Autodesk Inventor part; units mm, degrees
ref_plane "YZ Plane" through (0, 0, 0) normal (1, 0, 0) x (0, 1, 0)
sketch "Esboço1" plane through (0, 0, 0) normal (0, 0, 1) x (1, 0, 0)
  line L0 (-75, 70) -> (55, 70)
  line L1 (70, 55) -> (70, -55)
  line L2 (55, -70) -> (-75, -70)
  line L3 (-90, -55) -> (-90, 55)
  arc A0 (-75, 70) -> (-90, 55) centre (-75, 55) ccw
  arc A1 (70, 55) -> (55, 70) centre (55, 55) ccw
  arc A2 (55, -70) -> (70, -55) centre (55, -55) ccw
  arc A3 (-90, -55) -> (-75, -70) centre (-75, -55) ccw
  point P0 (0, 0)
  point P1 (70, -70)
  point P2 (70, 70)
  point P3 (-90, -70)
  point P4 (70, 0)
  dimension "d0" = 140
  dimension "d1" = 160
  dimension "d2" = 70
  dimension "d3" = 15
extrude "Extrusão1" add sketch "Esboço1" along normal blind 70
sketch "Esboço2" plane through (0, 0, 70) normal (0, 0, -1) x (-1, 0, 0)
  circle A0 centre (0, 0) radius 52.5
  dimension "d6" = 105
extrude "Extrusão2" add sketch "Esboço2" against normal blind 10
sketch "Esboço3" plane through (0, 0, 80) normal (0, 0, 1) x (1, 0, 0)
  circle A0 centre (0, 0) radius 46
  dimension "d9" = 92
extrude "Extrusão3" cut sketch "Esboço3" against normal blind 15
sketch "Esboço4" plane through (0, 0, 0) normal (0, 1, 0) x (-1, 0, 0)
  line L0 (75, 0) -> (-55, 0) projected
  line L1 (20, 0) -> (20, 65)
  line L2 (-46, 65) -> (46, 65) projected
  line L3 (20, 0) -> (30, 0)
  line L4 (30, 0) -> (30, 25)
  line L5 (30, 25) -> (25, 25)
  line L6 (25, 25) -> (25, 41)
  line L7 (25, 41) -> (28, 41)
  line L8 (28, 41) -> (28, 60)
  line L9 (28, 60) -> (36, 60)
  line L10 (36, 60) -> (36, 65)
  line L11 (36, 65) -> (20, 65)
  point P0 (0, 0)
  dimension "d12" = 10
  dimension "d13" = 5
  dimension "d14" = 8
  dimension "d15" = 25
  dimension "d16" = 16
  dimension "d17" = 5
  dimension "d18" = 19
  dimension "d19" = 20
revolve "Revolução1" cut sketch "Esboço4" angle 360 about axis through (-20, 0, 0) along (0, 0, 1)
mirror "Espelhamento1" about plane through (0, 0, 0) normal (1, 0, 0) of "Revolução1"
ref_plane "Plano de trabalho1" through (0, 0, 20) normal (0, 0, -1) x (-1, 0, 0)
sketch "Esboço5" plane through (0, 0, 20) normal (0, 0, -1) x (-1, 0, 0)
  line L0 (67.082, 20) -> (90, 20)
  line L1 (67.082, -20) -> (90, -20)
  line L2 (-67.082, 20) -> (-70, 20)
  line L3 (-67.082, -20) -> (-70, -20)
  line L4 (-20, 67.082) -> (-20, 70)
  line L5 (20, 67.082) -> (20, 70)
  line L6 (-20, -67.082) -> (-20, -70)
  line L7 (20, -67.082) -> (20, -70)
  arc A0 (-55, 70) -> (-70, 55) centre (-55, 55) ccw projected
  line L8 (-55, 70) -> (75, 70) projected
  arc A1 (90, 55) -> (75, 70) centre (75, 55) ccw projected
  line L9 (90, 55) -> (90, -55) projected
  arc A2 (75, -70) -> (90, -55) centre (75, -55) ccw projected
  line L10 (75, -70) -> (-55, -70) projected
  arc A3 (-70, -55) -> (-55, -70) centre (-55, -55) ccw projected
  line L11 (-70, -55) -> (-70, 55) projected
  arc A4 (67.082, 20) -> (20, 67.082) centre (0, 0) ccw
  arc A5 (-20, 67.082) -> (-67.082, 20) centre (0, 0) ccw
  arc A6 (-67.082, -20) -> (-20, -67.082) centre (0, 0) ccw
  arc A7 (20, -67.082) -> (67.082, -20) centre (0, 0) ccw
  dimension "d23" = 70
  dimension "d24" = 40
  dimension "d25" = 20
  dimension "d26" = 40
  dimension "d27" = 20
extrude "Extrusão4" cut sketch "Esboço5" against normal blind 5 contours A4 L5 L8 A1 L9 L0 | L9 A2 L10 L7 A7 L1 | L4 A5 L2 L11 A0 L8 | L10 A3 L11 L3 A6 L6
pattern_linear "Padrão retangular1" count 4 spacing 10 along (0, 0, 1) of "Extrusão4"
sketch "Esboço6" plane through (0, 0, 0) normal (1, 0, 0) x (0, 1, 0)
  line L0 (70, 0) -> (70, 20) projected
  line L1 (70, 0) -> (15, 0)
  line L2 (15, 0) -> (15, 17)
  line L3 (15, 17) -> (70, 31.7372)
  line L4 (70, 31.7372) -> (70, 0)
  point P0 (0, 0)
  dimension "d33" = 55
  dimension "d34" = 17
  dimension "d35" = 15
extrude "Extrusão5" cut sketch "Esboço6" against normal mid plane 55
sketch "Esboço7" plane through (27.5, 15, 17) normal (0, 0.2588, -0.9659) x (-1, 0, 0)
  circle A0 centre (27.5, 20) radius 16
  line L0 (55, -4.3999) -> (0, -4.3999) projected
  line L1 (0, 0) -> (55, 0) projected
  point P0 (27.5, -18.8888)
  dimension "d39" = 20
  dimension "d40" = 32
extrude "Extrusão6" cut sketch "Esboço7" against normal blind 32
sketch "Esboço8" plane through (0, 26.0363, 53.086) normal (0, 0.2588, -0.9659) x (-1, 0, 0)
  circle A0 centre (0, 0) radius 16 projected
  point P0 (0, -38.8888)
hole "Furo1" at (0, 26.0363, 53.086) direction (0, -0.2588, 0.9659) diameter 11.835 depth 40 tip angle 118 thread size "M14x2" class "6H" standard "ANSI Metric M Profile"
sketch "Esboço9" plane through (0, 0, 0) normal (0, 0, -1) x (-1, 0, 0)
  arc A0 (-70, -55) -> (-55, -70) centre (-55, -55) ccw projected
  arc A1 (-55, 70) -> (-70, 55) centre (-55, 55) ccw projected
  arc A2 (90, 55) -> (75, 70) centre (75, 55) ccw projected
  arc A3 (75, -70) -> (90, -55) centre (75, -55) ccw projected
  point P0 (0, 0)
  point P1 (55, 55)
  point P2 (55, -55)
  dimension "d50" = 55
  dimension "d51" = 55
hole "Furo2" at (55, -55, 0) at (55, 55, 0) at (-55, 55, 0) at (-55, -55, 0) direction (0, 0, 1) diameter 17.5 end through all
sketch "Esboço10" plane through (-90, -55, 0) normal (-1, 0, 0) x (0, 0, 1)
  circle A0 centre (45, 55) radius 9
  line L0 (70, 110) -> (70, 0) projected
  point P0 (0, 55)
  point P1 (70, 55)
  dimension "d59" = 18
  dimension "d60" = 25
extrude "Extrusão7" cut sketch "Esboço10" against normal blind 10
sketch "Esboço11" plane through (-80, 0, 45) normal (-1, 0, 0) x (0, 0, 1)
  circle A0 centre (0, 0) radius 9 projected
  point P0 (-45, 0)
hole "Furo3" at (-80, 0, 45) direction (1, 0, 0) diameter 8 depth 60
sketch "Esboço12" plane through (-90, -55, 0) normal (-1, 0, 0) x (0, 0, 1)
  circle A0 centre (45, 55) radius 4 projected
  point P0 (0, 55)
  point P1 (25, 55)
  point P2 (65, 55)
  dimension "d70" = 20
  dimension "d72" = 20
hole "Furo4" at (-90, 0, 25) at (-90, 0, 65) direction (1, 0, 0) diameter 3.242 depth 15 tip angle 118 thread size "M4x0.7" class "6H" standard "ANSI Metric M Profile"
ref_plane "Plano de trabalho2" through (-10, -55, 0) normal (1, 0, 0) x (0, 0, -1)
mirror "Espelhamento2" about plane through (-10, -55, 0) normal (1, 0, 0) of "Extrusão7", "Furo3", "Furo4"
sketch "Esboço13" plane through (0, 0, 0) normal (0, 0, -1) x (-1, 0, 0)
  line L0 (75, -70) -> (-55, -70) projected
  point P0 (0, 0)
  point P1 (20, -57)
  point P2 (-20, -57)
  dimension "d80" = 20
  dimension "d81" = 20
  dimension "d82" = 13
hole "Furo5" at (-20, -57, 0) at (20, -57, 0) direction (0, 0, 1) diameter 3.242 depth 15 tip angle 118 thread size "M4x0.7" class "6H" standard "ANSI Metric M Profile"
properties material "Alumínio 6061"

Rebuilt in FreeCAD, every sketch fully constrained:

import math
import FreeCAD as App
import Part
import Sketcher
from FreeCAD import Vector
Q = App.Units.Quantity


def add_polygon(sketch, points):
    """Adds a closed chain of lines whose ends are joined by coincident constraints."""
    first, n = sketch.GeometryCount, len(points)
    for a, b in zip(points, points[1:] + points[:1]):
        sketch.addGeometry(Part.LineSegment(App.Vector(*a, 0), App.Vector(*b, 0)), False)
    for i in range(n):
        sketch.addConstraint(Sketcher.Constraint("Coincident", first + i, 2, first + (i + 1) % n, 1))

doc = App.newDocument("Part")
body = doc.addObject("PartDesign::Body", "Body")

sketch1 = body.newObject("Sketcher::SketchObject", "Sketch")
sketch1.AttachmentSupport = (doc.getObject("XY_Plane"), [""])
sketch1.MapMode = "FlatFace"
sketch1.addGeometry([
    Part.LineSegment(Vector(55, 70, 0), Vector(-75, 70, 0)),
    Part.ArcOfCircle(Part.Circle(Vector(-75, 55, 0), Vector(0, 0, 1), 15), math.radians(90), math.radians(180)),
    Part.LineSegment(Vector(-90, 55, 0), Vector(-90, -55, 0)),
    Part.ArcOfCircle(Part.Circle(Vector(-75, -55, 0), Vector(0, 0, 1), 15), math.radians(180), math.radians(270)),
    Part.LineSegment(Vector(-75, -70, 0), Vector(55, -70, 0)),
    Part.ArcOfCircle(Part.Circle(Vector(55, -55, 0), Vector(0, 0, 1), 15), math.radians(-90), math.radians(0)),
    Part.LineSegment(Vector(70, -55, 0), Vector(70, 55, 0)),
    Part.ArcOfCircle(Part.Circle(Vector(55, 55, 0), Vector(0, 0, 1), 15), math.radians(0), math.radians(90)),
], False)
sketch1.addConstraint([
    Sketcher.Constraint("Tangent", 0, 2, 1, 1),
    Sketcher.Constraint("Tangent", 1, 2, 2, 1),
    Sketcher.Constraint("Tangent", 2, 2, 3, 1),
    Sketcher.Constraint("Tangent", 3, 2, 4, 1),
    Sketcher.Constraint("Tangent", 4, 2, 5, 1),
    Sketcher.Constraint("Tangent", 5, 2, 6, 1),
    Sketcher.Constraint("Tangent", 6, 2, 7, 1),
    Sketcher.Constraint("Tangent", 7, 2, 0, 1),
    Sketcher.Constraint("Horizontal", 0),
    Sketcher.Constraint("Vertical", 2),
    Sketcher.Constraint("Horizontal", 4),
    Sketcher.Constraint("Vertical", 6),
    Sketcher.Constraint("Equal", 1, 3),
    Sketcher.Constraint("Equal", 3, 5),
    Sketcher.Constraint("Equal", 5, 7),
    Sketcher.Constraint("Radius", 1, Q("15 mm")),
    Sketcher.Constraint("DistanceY", -1, 1, 0, 2, Q("70 mm")),
    Sketcher.Constraint("DistanceY", 3, 2, -1, 1, Q("70 mm")),
    Sketcher.Constraint("DistanceX", -1, 1, 5, 2, Q("70 mm")),
    Sketcher.Constraint("DistanceX", 0, 2, 0, 1, Q("130 mm")),
])
pad1 = body.newObject("PartDesign::Pad", "Pad")
pad1.Profile = sketch1
pad1.Length = 70

sketch2 = body.newObject("Sketcher::SketchObject", "Sketch001")
sketch2.AttachmentSupport = (doc.getObject("XY_Plane"), [""])
sketch2.MapMode = "FlatFace"
sketch2.AttachmentOffset = App.Placement(Vector(0, 0, 70), App.Rotation())
sketch2.addGeometry(Part.Circle(Vector(0, 0, 0), Vector(0, 0, 1), 52), False)
sketch2.addConstraint([
    Sketcher.Constraint("Coincident", 0, 3, -1, 1),
    Sketcher.Constraint("Diameter", 0, Q("105 mm")),
])
pad2 = body.newObject("PartDesign::Pad", "Pad001")
pad2.Profile = sketch2
pad2.Length = 10

sketch3 = body.newObject("Sketcher::SketchObject", "Sketch002")
sketch3.AttachmentSupport = (doc.getObject("XY_Plane"), [""])
sketch3.MapMode = "FlatFace"
sketch3.AttachmentOffset = App.Placement(Vector(0, 0, 80), App.Rotation())
sketch3.addGeometry(Part.Circle(Vector(0, 0, 0), Vector(0, 0, 1), 46), False)
sketch3.addConstraint([
    Sketcher.Constraint("Coincident", 0, 3, -1, 1),
    Sketcher.Constraint("Diameter", 0, Q("92 mm")),
])
pocket1 = body.newObject("PartDesign::Pocket", "Pocket")
pocket1.Profile = sketch3
pocket1.Length = 15

sketch4 = body.newObject("Sketcher::SketchObject", "Sketch003")
sketch4.AttachmentSupport = (doc.getObject("XZ_Plane"), [""])
sketch4.MapMode = "FlatFace"
add_polygon(sketch4, [(-20, 0), (-30, 0), (-30, 25), (-25, 25), (-25, 41), (-28, 41), (-28, 60), (-36, 60), (-36, 65), (-20, 65)])
sketch4.addGeometry(Part.LineSegment(Vector(-20, 0, 0), Vector(-20, 65, 0)), True)
sketch4.addConstraint([
    Sketcher.Constraint("Horizontal", 0),
    Sketcher.Constraint("Vertical", 1),
    Sketcher.Constraint("Horizontal", 2),
    Sketcher.Constraint("Vertical", 3),
    Sketcher.Constraint("Horizontal", 4),
    Sketcher.Constraint("Vertical", 5),
    Sketcher.Constraint("Horizontal", 6),
    Sketcher.Constraint("Vertical", 7),
    Sketcher.Constraint("Horizontal", 8),
    Sketcher.Constraint("Vertical", 9),
    Sketcher.Constraint("Vertical", 10),
    Sketcher.Constraint("Coincident", 10, 1, 9, 2),
    Sketcher.Constraint("PointOnObject", 0, 2, -1),
    Sketcher.Constraint("Horizontal", 7, 2, 10, 2),
    Sketcher.Constraint("Equal", 8, 3),
    Sketcher.Constraint("Equal", 2, 7),
    Sketcher.Constraint("DistanceX", 0, 2, 0, 1, Q("10 mm")),
    Sketcher.Constraint("DistanceX", 2, 1, 2, 2, Q("5 mm")),
    Sketcher.Constraint("DistanceX", 6, 2, 6, 1, Q("8 mm")),
    Sketcher.Constraint("DistanceX", 8, 1, 8, 2, Q("16 mm")),
    Sketcher.Constraint("DistanceY", 1, 1, 1, 2, Q("25 mm")),
    Sketcher.Constraint("DistanceY", 5, 1, 5, 2, Q("19 mm")),
    Sketcher.Constraint("DistanceX", 2, 2, -1, 1, Q("25 mm")),
])
groove = body.newObject("PartDesign::Groove", "Groove")
groove.Profile = sketch4
groove.ReferenceAxis = (sketch4, ["Axis0"])
groove.Angle = 360
doc.recompute()

mirrored = body.newObject("PartDesign::Mirrored", "Mirrored")
mirrored.Originals = [groove]
mirrored.MirrorPlane = (doc.getObject("YZ_Plane"), [""])
body.Tip = mirrored

sketch5 = body.newObject("Sketcher::SketchObject", "Sketch004")
sketch5.AttachmentSupport = (doc.getObject("XY_Plane"), [""])
sketch5.MapMode = "FlatFace"
sketch5.AttachmentOffset = App.Placement(Vector(0, 0, 20), App.Rotation())
sketch5.addGeometry([
    Part.ArcOfCircle(Part.Circle(Vector(0, 0, 0), Vector(0, 0, 1), 70), math.radians(107), math.radians(163)),
    Part.LineSegment(Vector(-67.1, 20, 0), Vector(-90, 20, 0)),
    Part.LineSegment(Vector(-90, 20, 0), Vector(-90, 55, 0)),
    Part.ArcOfCircle(Part.Circle(Vector(-75, 55, 0), Vector(0, 0, 1), 15), math.radians(90), math.radians(180)),
    Part.LineSegment(Vector(-75, 70, 0), Vector(-20, 70, 0)),
    Part.LineSegment(Vector(-20, 70, 0), Vector(-20, 67.1, 0)),
    Part.LineSegment(Vector(-90, -55, 0), Vector(-90, -20, 0)),
    Part.LineSegment(Vector(-90, -20, 0), Vector(-67.1, -20, 0)),
    Part.ArcOfCircle(Part.Circle(Vector(0, 0, 0), Vector(0, 0, 1), 70), math.radians(-163), math.radians(-107)),
    Part.LineSegment(Vector(-20, -67.1, 0), Vector(-20, -70, 0)),
    Part.LineSegment(Vector(-20, -70, 0), Vector(-75, -70, 0)),
    Part.ArcOfCircle(Part.Circle(Vector(-75, -55, 0), Vector(0, 0, 1), 15), math.radians(180), math.radians(270)),
    Part.LineSegment(Vector(20, 67.1, 0), Vector(20, 70, 0)),
    Part.LineSegment(Vector(20, 70, 0), Vector(55, 70, 0)),
    Part.ArcOfCircle(Part.Circle(Vector(55, 55, 0), Vector(0, 0, 1), 15), math.radians(0), math.radians(90)),
    Part.LineSegment(Vector(70, 55, 0), Vector(70, 20, 0)),
    Part.LineSegment(Vector(70, 20, 0), Vector(67.1, 20, 0)),
    Part.ArcOfCircle(Part.Circle(Vector(0, 0, 0), Vector(0, 0, 1), 70), math.radians(17), math.radians(73)),
    Part.LineSegment(Vector(55, -70, 0), Vector(20, -70, 0)),
    Part.LineSegment(Vector(20, -70, 0), Vector(20, -67.1, 0)),
    Part.ArcOfCircle(Part.Circle(Vector(0, 0, 0), Vector(0, 0, 1), 70), math.radians(-73), math.radians(-17)),
    Part.LineSegment(Vector(67.1, -20, 0), Vector(70, -20, 0)),
    Part.LineSegment(Vector(70, -20, 0), Vector(70, -55, 0)),
    Part.ArcOfCircle(Part.Circle(Vector(55, -55, 0), Vector(0, 0, 1), 15), math.radians(-90), math.radians(0)),
], False)
sketch5.addConstraint([
    Sketcher.Constraint("Coincident", 0, 2, 1, 1),
    Sketcher.Constraint("Coincident", 1, 2, 2, 1),
    Sketcher.Constraint("Tangent", 2, 2, 3, 2),
    Sketcher.Constraint("Tangent", 3, 1, 4, 1),
    Sketcher.Constraint("Coincident", 4, 2, 5, 1),
    Sketcher.Constraint("Coincident", 5, 2, 0, 1),
    Sketcher.Constraint("Coincident", 6, 2, 7, 1),
    Sketcher.Constraint("Coincident", 7, 2, 8, 1),
    Sketcher.Constraint("Coincident", 8, 2, 9, 1),
    Sketcher.Constraint("Coincident", 9, 2, 10, 1),
    Sketcher.Constraint("Tangent", 10, 2, 11, 2),
    Sketcher.Constraint("Tangent", 11, 1, 6, 1),
    Sketcher.Constraint("Coincident", 12, 2, 13, 1),
    Sketcher.Constraint("Tangent", 13, 2, 14, 2),
    Sketcher.Constraint("Tangent", 14, 1, 15, 1),
    Sketcher.Constraint("Coincident", 15, 2, 16, 1),
    Sketcher.Constraint("Coincident", 16, 2, 17, 1),
    Sketcher.Constraint("Coincident", 17, 2, 12, 1),
    Sketcher.Constraint("Coincident", 18, 2, 19, 1),
    Sketcher.Constraint("Coincident", 19, 2, 20, 1),
    Sketcher.Constraint("Coincident", 20, 2, 21, 1),
    Sketcher.Constraint("Coincident", 21, 2, 22, 1),
    Sketcher.Constraint("Tangent", 22, 2, 23, 2),
    Sketcher.Constraint("Tangent", 23, 1, 18, 1),
    Sketcher.Constraint("Horizontal", 1),
    Sketcher.Constraint("Vertical", 2),
    Sketcher.Constraint("Horizontal", 4),
    Sketcher.Constraint("Vertical", 5),
    Sketcher.Constraint("Vertical", 6),
    Sketcher.Constraint("Horizontal", 7),
    Sketcher.Constraint("Vertical", 9),
    Sketcher.Constraint("Horizontal", 10),
    Sketcher.Constraint("Vertical", 12),
    Sketcher.Constraint("Horizontal", 13),
    Sketcher.Constraint("Vertical", 15),
    Sketcher.Constraint("Horizontal", 16),
    Sketcher.Constraint("Horizontal", 18),
    Sketcher.Constraint("Vertical", 19),
    Sketcher.Constraint("Horizontal", 21),
    Sketcher.Constraint("Vertical", 22),
    Sketcher.Constraint("Coincident", 0, 3, -1, 1),
    Sketcher.Constraint("Coincident", 8, 3, -1, 1),
    Sketcher.Constraint("Coincident", 17, 3, -1, 1),
    Sketcher.Constraint("Coincident", 20, 3, -1, 1),
    Sketcher.Constraint("Equal", 0, 8),
    Sketcher.Constraint("Equal", 3, 11),
    Sketcher.Constraint("Equal", 11, 14),
    Sketcher.Constraint("Equal", 8, 17),
    Sketcher.Constraint("Equal", 17, 20),
    Sketcher.Constraint("Equal", 14, 23),
    Sketcher.Constraint("Symmetric", 9, 2, 12, 2, -1, 1),
    Sketcher.Constraint("Symmetric", 4, 2, 18, 2, -1, 1),
    Sketcher.Constraint("Symmetric", 4, 2, 12, 2, -2),
    Sketcher.Constraint("Symmetric", 1, 2, 6, 2, -1),
    Sketcher.Constraint("Symmetric", 15, 2, 21, 2, -1),
    Sketcher.Constraint("Horizontal", 1, 2, 15, 2),
    Sketcher.Constraint("Equal", 18, 2),
    Sketcher.Constraint("Equal", 21, 5),
    Sketcher.Constraint("Radius", 0, Q("70 mm")),
    Sketcher.Constraint("DistanceY", -1, 1, 0, 2, Q("20 mm")),
    Sketcher.Constraint("DistanceY", -1, 1, 3, 1, Q("70 mm")),
    Sketcher.Constraint("Radius", 3, Q("15 mm")),
    Sketcher.Constraint("DistanceX", 2, 2, 4, 2, Q("70 mm")),
])
pocket2 = body.newObject("PartDesign::Pocket", "Pocket001")
pocket2.Profile = sketch5
pocket2.Length = 5
pocket2.Reversed = True
doc.recompute()

linearpattern = body.newObject("PartDesign::LinearPattern", "LinearPattern")
linearpattern.Originals = [pocket2]
linearpattern.Direction = (doc.getObject("Z_Axis"), [""])
linearpattern.Mode = "offset"
linearpattern.Offset = 10
linearpattern.Occurrences = 4
body.Tip = linearpattern

sketch6 = body.newObject("Sketcher::SketchObject", "Sketch005")
sketch6.AttachmentSupport = (doc.getObject("YZ_Plane"), [""])
sketch6.MapMode = "FlatFace"
add_polygon(sketch6, [(15, 0), (70, 0), (70, 32), (15, 17)])
sketch6.addConstraint([
    Sketcher.Constraint("Horizontal", 0),
    Sketcher.Constraint("Vertical", 1),
    Sketcher.Constraint("Vertical", 3),
    Sketcher.Constraint("PointOnObject", 0, 2, -1),
    Sketcher.Constraint("DistanceX", 0, 1, 0, 2, Q("55 mm")),
    Sketcher.Constraint("DistanceY", 3, 2, 3, 1, Q("17 mm")),
    Sketcher.Constraint("DistanceX", -1, 1, 2, 2, Q("15 mm")),
    Sketcher.Constraint("Angle", 2, Q("-165 deg")),
])
pocket3 = body.newObject("PartDesign::Pocket", "Pocket002")
pocket3.Profile = sketch6
pocket3.Length = 55
pocket3.Midplane = True

sketch7 = body.newObject("Sketcher::SketchObject", "Sketch006")
sketch7.Placement = App.Placement(Vector(27.5, 15, 17), App.Rotation(Vector(-1, 0, 0), Vector(0, 0.965925826, 0.258819045), Vector(0, 0.258819045, -0.965925826), "ZXY"))
sketch7.addGeometry(Part.Circle(Vector(28, 20, 0), Vector(0, 0, 1), 16), False)
sketch7.addConstraint([
    Sketcher.Constraint("Diameter", 0, Q("32 mm")),
    Sketcher.Constraint("DistanceY", -1, 1, 0, 3, Q("20 mm")),
    Sketcher.Constraint("DistanceX", -1, 1, 0, 3, Q("27.5 mm")),
])
pocket4 = body.newObject("PartDesign::Pocket", "Pocket003")
pocket4.Profile = sketch7
pocket4.Length = 32

sketch8 = body.newObject("Sketcher::SketchObject", "Sketch007")
sketch8.Placement = App.Placement(Vector(0, -11.527399, 43.020837), App.Rotation(Vector(0, 0.965925826, 0.258819045), Vector(0.999999999, 0, 0), Vector(0, 0.258819045, -0.965925826), "ZXY"))
sketch8.addGeometry(Part.Circle(Vector(39, 0, 0), Vector(0, 0, 1), 6), False)
sketch8.addConstraint([
    Sketcher.Constraint("PointOnObject", 0, 3, -1),
    Sketcher.Constraint("Diameter", 0, Q("11.835 mm")),
    Sketcher.Constraint("DistanceX", -1, 1, 0, 3, Q("38.8888 mm")),
])
doc.recompute()
hole = body.newObject("PartDesign::Hole", "Hole")
hole.Profile = sketch8
hole.ThreadType = "None"
hole.Diameter = 11.835
hole.DepthType = "Dimension"
hole.Depth = 40
hole.DrillPoint = "Angled"
hole.DrillPointAngle = 118

sketch9 = body.newObject("Sketcher::SketchObject", "Sketch008")
sketch9.AttachmentSupport = (doc.getObject("XY_Plane"), [""])
sketch9.MapMode = "FlatFace"
sketch9.addGeometry([
    Part.Circle(Vector(55, -55, 0), Vector(0, 0, 1), 9),
    Part.Circle(Vector(55, 55, 0), Vector(0, 0, 1), 9),
    Part.Circle(Vector(-55, 55, 0), Vector(0, 0, 1), 9),
    Part.Circle(Vector(-55, -55, 0), Vector(0, 0, 1), 9),
], False)
sketch9.addConstraint([
    Sketcher.Constraint("Equal", 0, 1),
    Sketcher.Constraint("Equal", 1, 2),
    Sketcher.Constraint("Equal", 2, 3),
    Sketcher.Constraint("Symmetric", 0, 3, 2, 3, -1, 1),
    Sketcher.Constraint("Symmetric", 1, 3, 3, 3, -1, 1),
    Sketcher.Constraint("Symmetric", 1, 3, 2, 3, -2),
    Sketcher.Constraint("Diameter", 0, Q("17.5 mm")),
    Sketcher.Constraint("DistanceX", -1, 1, 0, 3, Q("55 mm")),
    Sketcher.Constraint("DistanceY", 0, 3, -1, 1, Q("55 mm")),
])
doc.recompute()
hole2 = body.newObject("PartDesign::Hole", "Hole001")
hole2.Profile = sketch9
hole2.ThreadType = "None"
hole2.Diameter = 17.5
hole2.DepthType = "ThroughAll"
hole2.Reversed = True

sketch10 = body.newObject("Sketcher::SketchObject", "Sketch009")
sketch10.AttachmentSupport = (doc.getObject("YZ_Plane"), [""])
sketch10.MapMode = "FlatFace"
sketch10.AttachmentOffset = App.Placement(Vector(0, 0, -90), App.Rotation())
sketch10.addGeometry(Part.Circle(Vector(0, 45, 0), Vector(0, 0, 1), 9), False)
sketch10.addConstraint([
    Sketcher.Constraint("PointOnObject", 0, 3, -2),
    Sketcher.Constraint("Diameter", 0, Q("18 mm")),
    Sketcher.Constraint("DistanceY", -1, 1, 0, 3, Q("45 mm")),
])
pocket5 = body.newObject("PartDesign::Pocket", "Pocket004")
pocket5.Profile = sketch10
pocket5.Length = 10
pocket5.Reversed = True

sketch11 = body.newObject("Sketcher::SketchObject", "Sketch010")
sketch11.AttachmentSupport = (doc.getObject("YZ_Plane"), [""])
sketch11.MapMode = "FlatFace"
sketch11.AttachmentOffset = App.Placement(Vector(0, 0, -80), App.Rotation())
sketch11.addGeometry(Part.Circle(Vector(0, 45, 0), Vector(0, 0, 1), 4), False)
sketch11.addConstraint([
    Sketcher.Constraint("PointOnObject", 0, 3, -2),
    Sketcher.Constraint("Diameter", 0, Q("8 mm")),
    Sketcher.Constraint("DistanceY", -1, 1, 0, 3, Q("45 mm")),
])
doc.recompute()
hole3 = body.newObject("PartDesign::Hole", "Hole002")
hole3.Profile = sketch11
hole3.ThreadType = "None"
hole3.Diameter = 8
hole3.DepthType = "Dimension"
hole3.Depth = 60
hole3.DrillPoint = "Flat"
hole3.Reversed = True

sketch12 = body.newObject("Sketcher::SketchObject", "Sketch011")
sketch12.AttachmentSupport = (doc.getObject("YZ_Plane"), [""])
sketch12.MapMode = "FlatFace"
sketch12.AttachmentOffset = App.Placement(Vector(0, 0, -90), App.Rotation())
sketch12.addGeometry([
    Part.Circle(Vector(0, 25, 0), Vector(0, 0, 1), 1.6),
    Part.Circle(Vector(0, 65, 0), Vector(0, 0, 1), 1.6),
], False)
sketch12.addConstraint([
    Sketcher.Constraint("Equal", 0, 1),
    Sketcher.Constraint("PointOnObject", 0, 3, -2),
    Sketcher.Constraint("PointOnObject", 1, 3, -2),
    Sketcher.Constraint("Diameter", 0, Q("3.242 mm")),
    Sketcher.Constraint("DistanceY", -1, 1, 0, 3, Q("25 mm")),
    Sketcher.Constraint("DistanceY", -1, 1, 1, 3, Q("65 mm")),
])
doc.recompute()
hole4 = body.newObject("PartDesign::Hole", "Hole003")
hole4.Profile = sketch12
hole4.ThreadType = "None"
hole4.Diameter = 3.242
hole4.DepthType = "Dimension"
hole4.Depth = 15
hole4.DrillPoint = "Angled"
hole4.DrillPointAngle = 118
hole4.Reversed = True
doc.recompute()

datumplane = body.newObject("PartDesign::Plane", "DatumPlane")
datumplane.AttachmentSupport = (doc.getObject("YZ_Plane"), [""])
datumplane.MapMode = "FlatFace"
datumplane.AttachmentOffset = App.Placement(Vector(0, 0, -10), App.Rotation())
mirrored2 = body.newObject("PartDesign::Mirrored", "Mirrored001")
mirrored2.Originals = [pocket5, hole3, hole4]
mirrored2.MirrorPlane = (datumplane, [""])
body.Tip = mirrored2

sketch13 = body.newObject("Sketcher::SketchObject", "Sketch012")
sketch13.AttachmentSupport = (doc.getObject("XY_Plane"), [""])
sketch13.MapMode = "FlatFace"
sketch13.addGeometry([
    Part.Circle(Vector(-20, -57, 0), Vector(0, 0, 1), 1.6),
    Part.Circle(Vector(20, -57, 0), Vector(0, 0, 1), 1.6),
], False)
sketch13.addConstraint([
    Sketcher.Constraint("Equal", 0, 1),
    Sketcher.Constraint("Symmetric", 0, 3, 1, 3, -2),
    Sketcher.Constraint("Diameter", 0, Q("3.242 mm")),
    Sketcher.Constraint("DistanceX", 0, 3, -1, 1, Q("20 mm")),
    Sketcher.Constraint("DistanceY", 0, 3, -1, 1, Q("57 mm")),
])
doc.recompute()
hole5 = body.newObject("PartDesign::Hole", "Hole004")
hole5.Profile = sketch13
hole5.ThreadType = "None"
hole5.Diameter = 3.242
hole5.DepthType = "Dimension"
hole5.Depth = 15
hole5.DrillPoint = "Angled"
hole5.DrillPointAngle = 118
hole5.Reversed = True

doc.recompute()
